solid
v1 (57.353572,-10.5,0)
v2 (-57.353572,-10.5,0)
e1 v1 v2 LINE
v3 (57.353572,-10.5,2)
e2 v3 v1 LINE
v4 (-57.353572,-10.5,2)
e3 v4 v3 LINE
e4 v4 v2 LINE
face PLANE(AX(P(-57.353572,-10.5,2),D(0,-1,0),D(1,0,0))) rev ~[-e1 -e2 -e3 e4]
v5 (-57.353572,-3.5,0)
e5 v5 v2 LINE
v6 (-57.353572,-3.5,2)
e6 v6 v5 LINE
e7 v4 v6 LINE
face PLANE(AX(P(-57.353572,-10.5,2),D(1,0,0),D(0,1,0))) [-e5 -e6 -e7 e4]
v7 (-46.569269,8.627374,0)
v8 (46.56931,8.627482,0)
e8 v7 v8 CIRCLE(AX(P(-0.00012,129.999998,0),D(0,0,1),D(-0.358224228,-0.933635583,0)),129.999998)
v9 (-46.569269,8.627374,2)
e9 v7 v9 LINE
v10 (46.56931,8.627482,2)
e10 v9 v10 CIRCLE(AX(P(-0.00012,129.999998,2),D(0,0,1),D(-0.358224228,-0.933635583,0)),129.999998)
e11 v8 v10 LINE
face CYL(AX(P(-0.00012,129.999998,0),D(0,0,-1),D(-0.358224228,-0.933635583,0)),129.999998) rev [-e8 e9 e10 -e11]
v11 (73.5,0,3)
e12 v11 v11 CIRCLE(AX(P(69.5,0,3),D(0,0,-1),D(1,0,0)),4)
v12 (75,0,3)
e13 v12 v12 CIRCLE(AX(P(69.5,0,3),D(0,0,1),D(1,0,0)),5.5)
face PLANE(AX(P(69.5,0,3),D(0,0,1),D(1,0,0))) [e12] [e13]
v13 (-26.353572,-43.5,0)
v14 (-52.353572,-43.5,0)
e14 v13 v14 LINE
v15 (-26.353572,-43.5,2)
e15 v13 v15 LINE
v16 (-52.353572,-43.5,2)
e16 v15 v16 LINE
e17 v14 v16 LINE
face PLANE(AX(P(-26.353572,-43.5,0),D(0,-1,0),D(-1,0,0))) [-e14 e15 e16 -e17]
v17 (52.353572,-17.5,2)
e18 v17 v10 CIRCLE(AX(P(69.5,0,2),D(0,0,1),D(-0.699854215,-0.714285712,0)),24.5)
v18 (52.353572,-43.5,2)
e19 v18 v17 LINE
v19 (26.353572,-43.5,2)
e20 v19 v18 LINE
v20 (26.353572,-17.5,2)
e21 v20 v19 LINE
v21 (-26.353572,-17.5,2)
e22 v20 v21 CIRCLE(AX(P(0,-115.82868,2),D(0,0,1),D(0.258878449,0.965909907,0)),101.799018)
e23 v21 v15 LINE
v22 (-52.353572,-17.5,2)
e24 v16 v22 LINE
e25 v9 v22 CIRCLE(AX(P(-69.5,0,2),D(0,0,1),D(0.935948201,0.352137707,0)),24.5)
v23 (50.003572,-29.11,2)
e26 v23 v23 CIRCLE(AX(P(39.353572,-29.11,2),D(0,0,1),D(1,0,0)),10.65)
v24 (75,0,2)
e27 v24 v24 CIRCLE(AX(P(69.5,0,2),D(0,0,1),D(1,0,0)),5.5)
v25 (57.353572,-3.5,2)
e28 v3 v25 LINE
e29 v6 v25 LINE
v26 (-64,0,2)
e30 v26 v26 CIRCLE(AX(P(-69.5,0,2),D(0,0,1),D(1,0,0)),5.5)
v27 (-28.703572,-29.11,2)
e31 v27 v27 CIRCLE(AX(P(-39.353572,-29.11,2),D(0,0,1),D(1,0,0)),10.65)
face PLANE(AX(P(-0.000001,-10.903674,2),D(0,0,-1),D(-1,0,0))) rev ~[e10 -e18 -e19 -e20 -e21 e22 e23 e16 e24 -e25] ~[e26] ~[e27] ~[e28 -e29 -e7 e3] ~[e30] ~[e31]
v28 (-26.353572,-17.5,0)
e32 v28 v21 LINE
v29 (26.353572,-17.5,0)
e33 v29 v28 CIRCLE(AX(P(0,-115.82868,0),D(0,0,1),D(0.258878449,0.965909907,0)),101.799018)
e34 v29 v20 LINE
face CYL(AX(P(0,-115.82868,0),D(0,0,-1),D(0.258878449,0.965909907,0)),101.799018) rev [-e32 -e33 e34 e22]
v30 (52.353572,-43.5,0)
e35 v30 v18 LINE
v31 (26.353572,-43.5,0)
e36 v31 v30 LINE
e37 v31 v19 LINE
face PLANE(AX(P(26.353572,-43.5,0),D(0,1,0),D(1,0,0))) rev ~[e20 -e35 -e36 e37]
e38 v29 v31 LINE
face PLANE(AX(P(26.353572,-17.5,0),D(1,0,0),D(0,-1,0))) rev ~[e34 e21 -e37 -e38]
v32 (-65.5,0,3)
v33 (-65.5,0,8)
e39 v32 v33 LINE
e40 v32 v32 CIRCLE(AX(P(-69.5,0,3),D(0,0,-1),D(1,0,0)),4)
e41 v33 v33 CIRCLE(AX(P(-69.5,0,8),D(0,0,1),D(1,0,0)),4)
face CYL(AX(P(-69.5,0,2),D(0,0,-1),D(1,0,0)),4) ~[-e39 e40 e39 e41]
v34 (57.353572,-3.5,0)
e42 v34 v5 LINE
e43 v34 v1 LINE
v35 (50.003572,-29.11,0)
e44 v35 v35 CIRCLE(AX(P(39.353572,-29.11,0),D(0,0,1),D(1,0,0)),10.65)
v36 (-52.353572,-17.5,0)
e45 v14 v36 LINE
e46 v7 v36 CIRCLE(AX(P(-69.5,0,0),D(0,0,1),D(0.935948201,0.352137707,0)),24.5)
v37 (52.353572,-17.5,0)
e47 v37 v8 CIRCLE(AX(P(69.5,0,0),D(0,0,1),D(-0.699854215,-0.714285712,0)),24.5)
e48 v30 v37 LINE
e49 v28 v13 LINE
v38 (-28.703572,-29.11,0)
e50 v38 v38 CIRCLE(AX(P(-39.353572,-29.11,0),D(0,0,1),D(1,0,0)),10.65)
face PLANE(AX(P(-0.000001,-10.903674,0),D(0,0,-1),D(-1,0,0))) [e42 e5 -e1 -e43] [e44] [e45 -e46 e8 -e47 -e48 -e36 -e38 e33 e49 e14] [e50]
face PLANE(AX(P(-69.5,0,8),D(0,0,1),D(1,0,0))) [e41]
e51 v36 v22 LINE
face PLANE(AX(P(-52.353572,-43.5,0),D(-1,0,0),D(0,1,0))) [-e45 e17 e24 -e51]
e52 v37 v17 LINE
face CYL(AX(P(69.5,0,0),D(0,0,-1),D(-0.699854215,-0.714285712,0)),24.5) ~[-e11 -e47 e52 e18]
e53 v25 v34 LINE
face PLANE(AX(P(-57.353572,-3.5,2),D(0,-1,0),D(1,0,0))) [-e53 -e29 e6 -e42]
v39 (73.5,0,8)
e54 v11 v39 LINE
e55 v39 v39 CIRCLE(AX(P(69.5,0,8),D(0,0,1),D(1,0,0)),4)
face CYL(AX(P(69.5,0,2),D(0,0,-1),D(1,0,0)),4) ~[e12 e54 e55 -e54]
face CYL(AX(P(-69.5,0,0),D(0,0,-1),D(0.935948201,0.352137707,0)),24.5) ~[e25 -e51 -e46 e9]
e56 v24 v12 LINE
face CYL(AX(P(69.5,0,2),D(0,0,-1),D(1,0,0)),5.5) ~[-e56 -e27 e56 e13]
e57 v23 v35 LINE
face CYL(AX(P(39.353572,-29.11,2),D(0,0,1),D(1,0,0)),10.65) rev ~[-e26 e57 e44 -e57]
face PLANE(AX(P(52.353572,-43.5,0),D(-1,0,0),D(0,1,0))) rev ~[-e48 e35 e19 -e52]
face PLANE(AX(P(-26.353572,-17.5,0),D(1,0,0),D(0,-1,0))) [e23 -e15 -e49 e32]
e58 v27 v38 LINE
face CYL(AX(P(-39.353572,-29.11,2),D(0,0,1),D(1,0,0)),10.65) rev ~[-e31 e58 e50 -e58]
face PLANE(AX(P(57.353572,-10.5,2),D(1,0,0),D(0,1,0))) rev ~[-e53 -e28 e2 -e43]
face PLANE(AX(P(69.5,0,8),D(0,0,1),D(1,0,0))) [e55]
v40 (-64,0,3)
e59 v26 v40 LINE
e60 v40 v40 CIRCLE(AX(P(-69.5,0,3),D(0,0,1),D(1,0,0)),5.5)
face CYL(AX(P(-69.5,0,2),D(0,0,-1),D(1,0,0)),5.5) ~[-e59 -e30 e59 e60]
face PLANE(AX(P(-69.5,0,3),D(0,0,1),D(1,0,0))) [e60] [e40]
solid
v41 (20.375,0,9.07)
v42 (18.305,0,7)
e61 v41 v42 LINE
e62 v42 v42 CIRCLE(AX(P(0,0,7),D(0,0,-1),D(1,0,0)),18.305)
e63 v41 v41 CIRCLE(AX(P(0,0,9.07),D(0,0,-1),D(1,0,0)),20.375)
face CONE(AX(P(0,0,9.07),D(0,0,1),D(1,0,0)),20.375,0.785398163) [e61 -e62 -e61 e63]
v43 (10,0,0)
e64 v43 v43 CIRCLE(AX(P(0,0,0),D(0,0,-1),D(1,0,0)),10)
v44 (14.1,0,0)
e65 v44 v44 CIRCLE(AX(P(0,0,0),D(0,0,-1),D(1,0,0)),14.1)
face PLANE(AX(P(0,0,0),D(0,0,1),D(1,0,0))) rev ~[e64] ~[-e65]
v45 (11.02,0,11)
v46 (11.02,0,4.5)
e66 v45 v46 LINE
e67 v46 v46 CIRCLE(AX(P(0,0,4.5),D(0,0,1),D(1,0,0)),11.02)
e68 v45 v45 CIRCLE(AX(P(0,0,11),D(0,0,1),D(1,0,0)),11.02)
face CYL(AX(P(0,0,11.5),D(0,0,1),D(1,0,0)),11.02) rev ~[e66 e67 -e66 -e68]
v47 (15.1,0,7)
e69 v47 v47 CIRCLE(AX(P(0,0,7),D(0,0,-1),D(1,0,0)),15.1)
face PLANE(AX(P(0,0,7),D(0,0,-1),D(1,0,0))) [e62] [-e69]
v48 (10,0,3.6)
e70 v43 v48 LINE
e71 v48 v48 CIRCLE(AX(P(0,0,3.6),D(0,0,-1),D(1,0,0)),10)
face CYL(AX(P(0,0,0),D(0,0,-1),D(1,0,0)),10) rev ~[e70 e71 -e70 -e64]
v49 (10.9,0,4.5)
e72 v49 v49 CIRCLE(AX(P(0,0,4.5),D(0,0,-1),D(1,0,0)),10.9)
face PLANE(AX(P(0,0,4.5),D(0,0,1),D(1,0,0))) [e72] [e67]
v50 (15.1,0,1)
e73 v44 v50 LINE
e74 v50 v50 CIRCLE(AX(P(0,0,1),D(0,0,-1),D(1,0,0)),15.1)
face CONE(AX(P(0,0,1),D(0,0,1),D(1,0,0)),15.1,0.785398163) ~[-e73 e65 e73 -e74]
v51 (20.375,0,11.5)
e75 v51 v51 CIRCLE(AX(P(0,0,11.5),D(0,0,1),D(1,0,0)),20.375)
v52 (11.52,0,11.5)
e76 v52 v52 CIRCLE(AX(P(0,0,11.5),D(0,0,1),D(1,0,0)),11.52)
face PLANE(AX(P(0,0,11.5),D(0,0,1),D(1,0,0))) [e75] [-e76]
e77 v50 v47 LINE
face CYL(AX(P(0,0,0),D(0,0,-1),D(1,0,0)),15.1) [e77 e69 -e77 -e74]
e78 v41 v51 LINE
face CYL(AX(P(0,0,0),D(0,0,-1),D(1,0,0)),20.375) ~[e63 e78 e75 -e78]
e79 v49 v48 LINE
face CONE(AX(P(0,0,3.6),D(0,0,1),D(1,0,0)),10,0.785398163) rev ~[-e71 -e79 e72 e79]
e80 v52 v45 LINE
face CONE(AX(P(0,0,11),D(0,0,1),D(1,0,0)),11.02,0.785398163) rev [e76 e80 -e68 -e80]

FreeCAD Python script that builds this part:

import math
import FreeCAD as App
import Part
import Sketcher


def edges_at(feature, points):
    """Names of the edges that pass closest to the given points."""
    edges = feature.Shape.Edges
    near = lambda p: min(range(len(edges)), key=lambda i: edges[i].distToShape(Part.Vertex(*p))[0])
    return sorted({f"Edge{near(p) + 1}" for p in points})


def add_polygon(sketch, points):
    """Adds a closed chain of lines whose ends are joined by coincident constraints."""
    first, n = sketch.GeometryCount, len(points)
    for a, b in zip(points, points[1:] + points[:1]):
        sketch.addGeometry(Part.LineSegment(App.Vector(*a, 0), App.Vector(*b, 0)), False)
    for i in range(n):
        sketch.addConstraint(Sketcher.Constraint("Coincident", first + i, 2, first + (i + 1) % n, 1))

doc = App.newDocument("Part")
body = doc.addObject("PartDesign::Body", "Body")

# Sketch on XY plane
sketch1 = body.newObject("Sketcher::SketchObject", "Sketch")
sketch1.AttachmentSupport = (doc.getObject("XY_Plane"), [""])
sketch1.MapMode = "FlatFace"
sketch1.addGeometry(Part.Circle(App.Vector(0, 0, 0), App.Vector(0, 0, 1), 20), False)
sketch1.addConstraint(Sketcher.Constraint("Coincident", 0, 3, -1, 1))
sketch1.addConstraint(Sketcher.Constraint("Diameter", 0, 40.75))
pad1 = body.newObject("PartDesign::Pad", "Pad")
pad1.Profile = sketch1
pad1.Length = 11.5

# Sketch on XY plane
sketch2 = body.newObject("Sketcher::SketchObject", "Sketch001")
sketch2.AttachmentSupport = (doc.getObject("XY_Plane"), [""])
sketch2.MapMode = "FlatFace"
sketch2.AttachmentOffset = App.Placement(App.Vector(0, 0, 11.5), App.Rotation())
sketch2.addGeometry(Part.Circle(App.Vector(0, 0, 0), App.Vector(0, 0, 1), 11), False)
sketch2.addConstraint(Sketcher.Constraint("Coincident", 0, 3, -1, 1))
sketch2.addConstraint(Sketcher.Constraint("Diameter", 0, 22.04))
pocket1 = body.newObject("PartDesign::Pocket", "Pocket")
pocket1.Profile = sketch2
pocket1.Length = 7

# Sketch on XY plane
sketch3 = body.newObject("Sketcher::SketchObject", "Sketch002")
sketch3.AttachmentSupport = (doc.getObject("XY_Plane"), [""])
sketch3.MapMode = "FlatFace"
sketch3.addGeometry(Part.Circle(App.Vector(0, 0, 0), App.Vector(0, 0, 1), 23), False)
sketch3.addGeometry(Part.Circle(App.Vector(0, 0, 0), App.Vector(0, 0, 1), 15), False)
sketch3.addConstraint(Sketcher.Constraint("Coincident", 0, 3, -1, 1))
sketch3.addConstraint(Sketcher.Constraint("Coincident", 1, 3, -1, 1))
sketch3.addConstraint(Sketcher.Constraint("Diameter", 1, 30.2))
sketch3.addConstraint(Sketcher.Constraint("Diameter", 0, 45.115958))
pocket2 = body.newObject("PartDesign::Pocket", "Pocket001")
pocket2.Profile = sketch3
pocket2.Length = 7
pocket2.Reversed = True

# Sketch on XY plane
sketch4 = body.newObject("Sketcher::SketchObject", "Sketch003")
sketch4.AttachmentSupport = (doc.getObject("XY_Plane"), [""])
sketch4.MapMode = "FlatFace"
sketch4.addGeometry(Part.Circle(App.Vector(0, 0, 0), App.Vector(0, 0, 1), 10), False)
sketch4.addConstraint(Sketcher.Constraint("Coincident", 0, 3, -1, 1))
sketch4.addConstraint(Sketcher.Constraint("Diameter", 0, 20.0))
pocket3 = body.newObject("PartDesign::Pocket", "Pocket002")
pocket3.Profile = sketch4
pocket3.Type = "ThroughAll"
pocket3.Reversed = True
doc.recompute()

chamfer = body.newObject("PartDesign::Chamfer", "Chamfer")
chamfer.Base = (pocket3, edges_at(pocket3, [(-20.375, 0, 7)]))
chamfer.Size = 2.07
doc.recompute()

chamfer2 = body.newObject("PartDesign::Chamfer", "Chamfer001")
chamfer2.Base = (chamfer, edges_at(chamfer, [(-11.02, 0, 11.5)]))
chamfer2.Size = 0.5
doc.recompute()

chamfer3 = body.newObject("PartDesign::Chamfer", "Chamfer002")
chamfer3.Base = (chamfer2, edges_at(chamfer2, [(-10, 0, 4.5)]))
chamfer3.Size = 0.9
doc.recompute()

chamfer4 = body.newObject("PartDesign::Chamfer", "Chamfer003")
chamfer4.Base = (chamfer3, edges_at(chamfer3, [(-15.1, 0, 0)]))
chamfer4.Size = 1
body2 = doc.addObject("PartDesign::Body", "Body001")

# Sketch on XY plane
sketch5 = body2.newObject("Sketcher::SketchObject", "Sketch004")
sketch5.AttachmentSupport = (doc.getObject("XY_Plane001"), [""])
sketch5.MapMode = "FlatFace"
sketch5.addGeometry(Part.ArcOfCircle(Part.Circle(App.Vector(0, 130, 0), App.Vector(0, 0, 1), 130), math.radians(-111), math.radians(-69)), False)
sketch5.addGeometry(Part.ArcOfCircle(Part.Circle(App.Vector(-69, 0, 0), App.Vector(0, 0, 1), 24), math.radians(21), math.radians(314)), False)
sketch5.addGeometry(Part.LineSegment(App.Vector(-52, -18, 0), App.Vector(-52, -44, 0)), False)
sketch5.addGeometry(Part.LineSegment(App.Vector(-52, -44, 0), App.Vector(-26, -44, 0)), False)
sketch5.addGeometry(Part.LineSegment(App.Vector(-26, -44, 0), App.Vector(-26, -18, 0)), False)
sketch5.addGeometry(Part.ArcOfCircle(Part.Circle(App.Vector(0, -116, 0), App.Vector(0, 0, 1), 102), math.radians(75), math.radians(105)), False)
sketch5.addGeometry(Part.LineSegment(App.Vector(26, -18, 0), App.Vector(26, -44, 0)), False)
sketch5.addGeometry(Part.LineSegment(App.Vector(26, -44, 0), App.Vector(52, -44, 0)), False)
sketch5.addGeometry(Part.LineSegment(App.Vector(52, -44, 0), App.Vector(52, -18, 0)), False)
sketch5.addGeometry(Part.ArcOfCircle(Part.Circle(App.Vector(70, 0, 0), App.Vector(0, 0, 1), 25), math.radians(-134), math.radians(159)), False)
sketch5.addConstraint(Sketcher.Constraint("Coincident", 0, 1, 1, 1))
sketch5.addConstraint(Sketcher.Constraint("Coincident", 1, 2, 2, 1))
sketch5.addConstraint(Sketcher.Constraint("Coincident", 2, 2, 3, 1))
sketch5.addConstraint(Sketcher.Constraint("Coincident", 3, 2, 4, 1))
sketch5.addConstraint(Sketcher.Constraint("Coincident", 4, 2, 5, 2))
sketch5.addConstraint(Sketcher.Constraint("Coincident", 5, 1, 6, 1))
sketch5.addConstraint(Sketcher.Constraint("Coincident", 6, 2, 7, 1))
sketch5.addConstraint(Sketcher.Constraint("Coincident", 7, 2, 8, 1))
sketch5.addConstraint(Sketcher.Constraint("Coincident", 8, 2, 9, 1))
sketch5.addConstraint(Sketcher.Constraint("Coincident", 9, 2, 0, 2))
sketch5.addConstraint(Sketcher.Constraint("Vertical", 2))
sketch5.addConstraint(Sketcher.Constraint("Horizontal", 3))
sketch5.addConstraint(Sketcher.Constraint("Vertical", 4))
sketch5.addConstraint(Sketcher.Constraint("Vertical", 6))
sketch5.addConstraint(Sketcher.Constraint("Horizontal", 7))
sketch5.addConstraint(Sketcher.Constraint("Vertical", 8))
sketch5.addConstraint(Sketcher.Constraint("Equal", 1, 9))
sketch5.addConstraint(Sketcher.Constraint("Symmetric", 1, 3, 9, 3, -1, 1))
sketch5.addConstraint(Sketcher.Constraint("Symmetric", 4, 2, 5, 1, -2))
sketch5.addConstraint(Sketcher.Constraint("Symmetric", 2, 2, 7, 2, -2))
sketch5.addConstraint(Sketcher.Constraint("PointOnObject", 1, 3, -1))
sketch5.addConstraint(Sketcher.Constraint("Horizontal", 1, 2, 4, 2))
sketch5.addConstraint(Sketcher.Constraint("Equal", 7, 2))
sketch5.addConstraint(Sketcher.Constraint("Radius", 1, 24.5))
sketch5.addConstraint(Sketcher.Constraint("DistanceX", 3, 1, 3, 2, 26.0))
sketch5.addConstraint(Sketcher.Constraint("DistanceX", 1, 3, 9, 3, 139.0))
sketch5.addConstraint(Sketcher.Constraint("DistanceY", 1, 2, -1, 1, 17.5))
sketch5.addConstraint(Sketcher.Constraint("Radius", 5, 101.799018))
sketch5.addConstraint(Sketcher.Constraint("Radius", 0, 129.999998))
sketch5.addConstraint(Sketcher.Constraint("DistanceX", 0, 3, -1, 1, 0.00012))
sketch5.addConstraint(Sketcher.Constraint("DistanceX", 0, 1, -1, 1, 46.569269))
pad2 = body2.newObject("PartDesign::Pad", "Pad001")
pad2.Profile = sketch5
pad2.Length = 2

# Sketch on XY plane
sketch6 = body2.newObject("Sketcher::SketchObject", "Sketch005")
sketch6.AttachmentSupport = (doc.getObject("XY_Plane001"), [""])
sketch6.MapMode = "FlatFace"
sketch6.AttachmentOffset = App.Placement(App.Vector(0, 0, 2), App.Rotation())
sketch6.addGeometry(Part.Circle(App.Vector(-39, -29, 0), App.Vector(0, 0, 1), 11), False)
sketch6.addGeometry(Part.Circle(App.Vector(39, -29, 0), App.Vector(0, 0, 1), 11), False)
sketch6.addConstraint(Sketcher.Constraint("Equal", 0, 1))
sketch6.addConstraint(Sketcher.Constraint("Symmetric", 0, 3, 1, 3, -2))
sketch6.addConstraint(Sketcher.Constraint("Diameter", 0, 21.3))
sketch6.addConstraint(Sketcher.Constraint("DistanceY", 0, 3, -1, 1, 29.11))
sketch6.addConstraint(Sketcher.Constraint("DistanceX", 0, 3, -1, 1, 39.353572))
pocket4 = body2.newObject("PartDesign::Pocket", "Pocket003")
pocket4.Profile = sketch6
pocket4.Type = "ThroughAll"

# Sketch on XY plane
sketch7 = body2.newObject("Sketcher::SketchObject", "Sketch006")
sketch7.AttachmentSupport = (doc.getObject("XY_Plane001"), [""])
sketch7.MapMode = "FlatFace"
sketch7.AttachmentOffset = App.Placement(App.Vector(0, 0, 2), App.Rotation())
sketch7.addGeometry(Part.Circle(App.Vector(-70, 0, 0), App.Vector(0, 0, 1), 6), False)
sketch7.addGeometry(Part.Circle(App.Vector(70, 0, 0), App.Vector(0, 0, 1), 6), False)
sketch7.addConstraint(Sketcher.Constraint("Equal", 0, 1))
sketch7.addConstraint(Sketcher.Constraint("Symmetric", 0, 3, 1, 3, -1, 1))
sketch7.addConstraint(Sketcher.Constraint("PointOnObject", 0, 3, -1))
sketch7.addConstraint(Sketcher.Constraint("Diameter", 0, 11.0))
sketch7.addConstraint(Sketcher.Constraint("DistanceX", 0, 3, 1, 3, 139.0))
pad3 = body2.newObject("PartDesign::Pad", "Pad002")
pad3.Profile = sketch7
pad3.Length = 1

# Sketch on XY plane
sketch8 = body2.newObject("Sketcher::SketchObject", "Sketch007")
sketch8.AttachmentSupport = (doc.getObject("XY_Plane001"), [""])
sketch8.MapMode = "FlatFace"
sketch8.AttachmentOffset = App.Placement(App.Vector(0, 0, 2), App.Rotation())
sketch8.addGeometry(Part.Circle(App.Vector(-69.5, 0, 0), App.Vector(0, 0, 1), 4), False)
sketch8.addGeometry(Part.Circle(App.Vector(69.5, 0, 0), App.Vector(0, 0, 1), 4), False)
sketch8.addConstraint(Sketcher.Constraint("Equal", 0, 1))
sketch8.addConstraint(Sketcher.Constraint("Symmetric", 0, 3, 1, 3, -1, 1))
sketch8.addConstraint(Sketcher.Constraint("PointOnObject", 0, 3, -1))
sketch8.addConstraint(Sketcher.Constraint("Diameter", 0, 8.0))
sketch8.addConstraint(Sketcher.Constraint("DistanceX", 0, 3, 1, 3, 139.0))
pad4 = body2.newObject("PartDesign::Pad", "Pad003")
pad4.Profile = sketch8
pad4.Length = 6

# Sketch on XY plane
sketch9 = body2.newObject("Sketcher::SketchObject", "Sketch008")
sketch9.AttachmentSupport = (doc.getObject("XY_Plane001"), [""])
sketch9.MapMode = "FlatFace"
sketch9.AttachmentOffset = App.Placement(App.Vector(0, 0, 2), App.Rotation())
add_polygon(sketch9, [(-57, -4), (-57, -10), (57, -10), (57, -4)])  # lines 0-3
sketch9.addConstraint(Sketcher.Constraint("Vertical", 0))
sketch9.addConstraint(Sketcher.Constraint("Horizontal", 1))
sketch9.addConstraint(Sketcher.Constraint("Vertical", 2))
sketch9.addConstraint(Sketcher.Constraint("Horizontal", 3))
sketch9.addConstraint(Sketcher.Constraint("DistanceY", 0, 2, 0, 1, 7.0))
sketch9.addConstraint(Sketcher.Constraint("DistanceY", 0, 2, -1, 1, 10.5))
sketch9.addConstraint(Sketcher.Constraint("DistanceX", 1, 1, 1, 2, 114.707144))
sketch9.addConstraint(Sketcher.Constraint("DistanceX", 0, 2, -1, 1, 57.353572))
pocket5 = body2.newObject("PartDesign::Pocket", "Pocket004")
pocket5.Profile = sketch9
pocket5.Type = "ThroughAll"

doc.recompute()
